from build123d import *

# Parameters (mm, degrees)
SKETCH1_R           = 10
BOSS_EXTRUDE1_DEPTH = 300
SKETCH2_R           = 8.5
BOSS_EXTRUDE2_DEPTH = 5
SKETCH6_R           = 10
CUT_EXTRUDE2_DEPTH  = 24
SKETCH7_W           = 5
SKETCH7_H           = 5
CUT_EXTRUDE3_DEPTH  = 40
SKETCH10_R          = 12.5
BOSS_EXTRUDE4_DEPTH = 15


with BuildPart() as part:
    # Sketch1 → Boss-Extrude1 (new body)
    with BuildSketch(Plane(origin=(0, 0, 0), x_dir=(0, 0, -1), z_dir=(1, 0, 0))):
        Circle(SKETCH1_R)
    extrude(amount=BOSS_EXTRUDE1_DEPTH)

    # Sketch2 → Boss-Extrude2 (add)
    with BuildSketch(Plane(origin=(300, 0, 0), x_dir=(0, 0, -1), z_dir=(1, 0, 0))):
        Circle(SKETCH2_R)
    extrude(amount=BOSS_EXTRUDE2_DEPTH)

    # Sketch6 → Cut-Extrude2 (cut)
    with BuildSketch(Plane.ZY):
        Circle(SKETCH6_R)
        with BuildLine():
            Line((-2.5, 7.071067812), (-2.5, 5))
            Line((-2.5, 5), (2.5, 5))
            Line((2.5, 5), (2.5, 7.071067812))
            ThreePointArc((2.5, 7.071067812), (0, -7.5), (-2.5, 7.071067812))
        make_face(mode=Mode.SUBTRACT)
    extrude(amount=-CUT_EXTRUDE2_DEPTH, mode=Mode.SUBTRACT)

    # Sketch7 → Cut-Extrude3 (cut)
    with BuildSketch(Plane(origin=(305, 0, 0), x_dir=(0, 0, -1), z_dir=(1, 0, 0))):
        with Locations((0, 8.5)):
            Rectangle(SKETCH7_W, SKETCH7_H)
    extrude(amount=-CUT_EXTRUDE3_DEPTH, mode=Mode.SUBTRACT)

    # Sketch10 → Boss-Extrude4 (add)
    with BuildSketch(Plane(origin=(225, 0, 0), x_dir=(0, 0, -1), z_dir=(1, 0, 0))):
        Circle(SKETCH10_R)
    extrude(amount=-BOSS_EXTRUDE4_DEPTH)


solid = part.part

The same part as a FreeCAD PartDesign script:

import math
import FreeCAD as App
import Part
import Sketcher
from FreeCAD import Vector


def add_polygon(sketch, points):
    """Adds a closed chain of lines whose ends are joined by coincident constraints."""
    first, n = sketch.GeometryCount, len(points)
    for a, b in zip(points, points[1:] + points[:1]):
        sketch.addGeometry(Part.LineSegment(App.Vector(*a, 0), App.Vector(*b, 0)), False)
    for i in range(n):
        sketch.addConstraint(Sketcher.Constraint("Coincident", first + i, 2, first + (i + 1) % n, 1))

doc = App.newDocument("Part")
body = doc.addObject("PartDesign::Body", "Body")

# Sketch on YZ plane
sketch1 = doc.addObject("Sketcher::SketchObject", "Sketch")
body.addObject(sketch1)
sketch1.AttachmentSupport = (doc.YZ_Plane, [""])
sketch1.MapMode = "FlatFace"
sketch1.addGeometry(Part.Circle(Vector(0, 0, 0), Vector(0, 0, 1), 10), False)
sketch1.addConstraint(Sketcher.Constraint("Coincident", 0, 3, -1, 1))
sketch1.addConstraint(Sketcher.Constraint("Diameter", 0, 20.0))
pad1 = doc.addObject("PartDesign::Pad", "Pad")
body.addObject(pad1)
pad1.Profile = sketch1
pad1.Length = 300

# Sketch on YZ plane
sketch2 = doc.addObject("Sketcher::SketchObject", "Sketch001")
body.addObject(sketch2)
sketch2.AttachmentSupport = (doc.YZ_Plane, [""])
sketch2.MapMode = "FlatFace"
sketch2.AttachmentOffset = App.Placement(Vector(0, 0, 300), App.Rotation())
sketch2.addGeometry(Part.Circle(Vector(0, 0, 0), Vector(0, 0, 1), 8), False)
sketch2.addConstraint(Sketcher.Constraint("Coincident", 0, 3, -1, 1))
sketch2.addConstraint(Sketcher.Constraint("Diameter", 0, 17.0))
pad2 = doc.addObject("PartDesign::Pad", "Pad001")
body.addObject(pad2)
pad2.Profile = sketch2
pad2.Length = 5

# Sketch on YZ plane
sketch3 = doc.addObject("Sketcher::SketchObject", "Sketch002")
body.addObject(sketch3)
sketch3.AttachmentSupport = (doc.YZ_Plane, [""])
sketch3.MapMode = "FlatFace"
sketch3.addGeometry(Part.Circle(Vector(0, 0, 0), Vector(0, 0, 1), 10), False)
sketch3.addGeometry(Part.ArcOfCircle(Part.Circle(Vector(0, 0, 0), Vector(0, 0, 1), 7.5), math.radians(19), math.radians(341)), False)
sketch3.addGeometry(Part.LineSegment(Vector(7.1, -2.5, 0), Vector(5, -2.5, 0)), False)
sketch3.addGeometry(Part.LineSegment(Vector(5, -2.5, 0), Vector(5, 2.5, 0)), False)
sketch3.addGeometry(Part.LineSegment(Vector(5, 2.5, 0), Vector(7.1, 2.5, 0)), False)
sketch3.addConstraint(Sketcher.Constraint("Coincident", 1, 2, 2, 1))
sketch3.addConstraint(Sketcher.Constraint("Coincident", 2, 2, 3, 1))
sketch3.addConstraint(Sketcher.Constraint("Coincident", 3, 2, 4, 1))
sketch3.addConstraint(Sketcher.Constraint("Coincident", 4, 2, 1, 1))
sketch3.addConstraint(Sketcher.Constraint("Horizontal", 2))
sketch3.addConstraint(Sketcher.Constraint("Vertical", 3))
sketch3.addConstraint(Sketcher.Constraint("Horizontal", 4))
sketch3.addConstraint(Sketcher.Constraint("Coincident", 0, 3, -1, 1))
sketch3.addConstraint(Sketcher.Constraint("Coincident", 1, 3, -1, 1))
sketch3.addConstraint(Sketcher.Constraint("Vertical", 1, 2, 4, 2))
sketch3.addConstraint(Sketcher.Constraint("Diameter", 0, 20.0))
sketch3.addConstraint(Sketcher.Constraint("Radius", 1, 7.5))
sketch3.addConstraint(Sketcher.Constraint("DistanceY", 3, 1, 3, 2, 5.0))
sketch3.addConstraint(Sketcher.Constraint("DistanceX", -1, 1, 2, 2, 5.0))
pocket1 = doc.addObject("PartDesign::Pocket", "Pocket")
body.addObject(pocket1)
pocket1.Profile = sketch3
pocket1.Length = 24
pocket1.Reversed = True

# Sketch on YZ plane
sketch4 = doc.addObject("Sketcher::SketchObject", "Sketch003")
body.addObject(sketch4)
sketch4.AttachmentSupport = (doc.YZ_Plane, [""])
sketch4.MapMode = "FlatFace"
sketch4.AttachmentOffset = App.Placement(Vector(0, 0, 305), App.Rotation())
add_polygon(sketch4, [(11, 2), (6, 2), (6, -2), (11, -2)])  # lines 0-3
sketch4.addConstraint(Sketcher.Constraint("Horizontal", 0))
sketch4.addConstraint(Sketcher.Constraint("Vertical", 1))
sketch4.addConstraint(Sketcher.Constraint("Horizontal", 2))
sketch4.addConstraint(Sketcher.Constraint("Vertical", 3))
sketch4.addConstraint(Sketcher.Constraint("Equal", 2, 1))
sketch4.addConstraint(Sketcher.Constraint("DistanceX", 0, 2, 0, 1, 5.0))
sketch4.addConstraint(Sketcher.Constraint("DistanceX", -1, 1, 0, 2, 6.0))
sketch4.addConstraint(Sketcher.Constraint("DistanceY", -1, 1, 0, 2, 2.5))
pocket2 = doc.addObject("PartDesign::Pocket", "Pocket001")
body.addObject(pocket2)
pocket2.Profile = sketch4
pocket2.Length = 40

# Sketch on YZ plane
sketch5 = doc.addObject("Sketcher::SketchObject", "Sketch004")
body.addObject(sketch5)
sketch5.AttachmentSupport = (doc.YZ_Plane, [""])
sketch5.MapMode = "FlatFace"
sketch5.AttachmentOffset = App.Placement(Vector(0, 0, 225), App.Rotation())
sketch5.addGeometry(Part.Circle(Vector(0, 0, 0), Vector(0, 0, 1), 12), False)
sketch5.addConstraint(Sketcher.Constraint("Coincident", 0, 3, -1, 1))
sketch5.addConstraint(Sketcher.Constraint("Diameter", 0, 25.0))
pad3 = doc.addObject("PartDesign::Pad", "Pad002")
body.addObject(pad3)
pad3.Profile = sketch5
pad3.Length = 15
pad3.Reversed = True

doc.recompute()
